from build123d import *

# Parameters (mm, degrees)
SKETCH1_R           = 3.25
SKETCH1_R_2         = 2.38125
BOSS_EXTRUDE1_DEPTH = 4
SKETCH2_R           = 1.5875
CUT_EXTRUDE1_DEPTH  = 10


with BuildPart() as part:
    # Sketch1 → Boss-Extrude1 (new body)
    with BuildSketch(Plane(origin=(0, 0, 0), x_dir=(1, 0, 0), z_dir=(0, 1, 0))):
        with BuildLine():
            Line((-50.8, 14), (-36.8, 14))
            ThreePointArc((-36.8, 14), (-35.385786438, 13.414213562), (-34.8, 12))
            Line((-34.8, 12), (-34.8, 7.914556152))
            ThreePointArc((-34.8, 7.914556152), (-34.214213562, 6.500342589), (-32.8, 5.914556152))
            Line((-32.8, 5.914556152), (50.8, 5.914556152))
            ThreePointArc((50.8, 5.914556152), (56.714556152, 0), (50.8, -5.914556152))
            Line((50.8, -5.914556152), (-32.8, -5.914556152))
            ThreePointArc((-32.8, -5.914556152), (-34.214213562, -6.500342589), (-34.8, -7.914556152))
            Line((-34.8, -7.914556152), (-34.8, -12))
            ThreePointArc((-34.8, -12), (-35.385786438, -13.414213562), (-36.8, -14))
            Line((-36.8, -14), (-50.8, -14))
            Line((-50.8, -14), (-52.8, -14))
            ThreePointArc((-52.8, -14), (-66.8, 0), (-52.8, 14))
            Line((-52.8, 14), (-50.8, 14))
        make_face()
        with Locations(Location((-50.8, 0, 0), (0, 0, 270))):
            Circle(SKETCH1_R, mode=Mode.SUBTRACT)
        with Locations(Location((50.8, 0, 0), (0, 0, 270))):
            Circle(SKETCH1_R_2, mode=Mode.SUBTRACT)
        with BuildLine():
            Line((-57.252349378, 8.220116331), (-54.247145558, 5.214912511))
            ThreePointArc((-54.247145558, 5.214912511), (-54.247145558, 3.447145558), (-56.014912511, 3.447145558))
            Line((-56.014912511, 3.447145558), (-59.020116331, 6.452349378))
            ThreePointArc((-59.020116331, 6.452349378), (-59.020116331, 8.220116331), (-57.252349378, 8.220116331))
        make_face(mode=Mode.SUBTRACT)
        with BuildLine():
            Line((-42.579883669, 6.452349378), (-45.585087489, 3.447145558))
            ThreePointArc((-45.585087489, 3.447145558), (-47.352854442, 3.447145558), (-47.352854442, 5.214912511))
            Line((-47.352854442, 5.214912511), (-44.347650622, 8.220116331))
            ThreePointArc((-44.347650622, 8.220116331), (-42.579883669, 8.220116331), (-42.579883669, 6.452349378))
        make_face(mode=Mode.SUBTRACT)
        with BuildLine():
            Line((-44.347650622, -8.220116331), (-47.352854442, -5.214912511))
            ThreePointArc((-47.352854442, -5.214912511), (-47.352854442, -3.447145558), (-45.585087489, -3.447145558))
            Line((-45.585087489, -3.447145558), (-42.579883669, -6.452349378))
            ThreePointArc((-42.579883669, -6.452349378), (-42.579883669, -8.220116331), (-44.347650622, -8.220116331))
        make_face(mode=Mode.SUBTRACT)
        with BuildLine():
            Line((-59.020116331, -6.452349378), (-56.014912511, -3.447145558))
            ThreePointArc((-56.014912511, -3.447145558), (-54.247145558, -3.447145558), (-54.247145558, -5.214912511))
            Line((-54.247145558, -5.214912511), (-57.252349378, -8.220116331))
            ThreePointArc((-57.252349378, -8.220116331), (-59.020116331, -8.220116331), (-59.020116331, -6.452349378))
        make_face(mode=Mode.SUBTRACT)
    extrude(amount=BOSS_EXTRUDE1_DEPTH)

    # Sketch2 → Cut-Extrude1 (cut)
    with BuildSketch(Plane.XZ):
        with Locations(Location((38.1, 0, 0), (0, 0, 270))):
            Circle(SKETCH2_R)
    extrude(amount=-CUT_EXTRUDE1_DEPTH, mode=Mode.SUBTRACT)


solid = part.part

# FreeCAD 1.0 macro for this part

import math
import FreeCAD as App
import Part
import Sketcher

V = App.Vector

doc = App.newDocument("Part")
body = doc.addObject("PartDesign::Body", "Body")

sketch1 = body.newObject("Sketcher::SketchObject", "Sketch")
sketch1.AttachmentSupport = (doc.getObject("XZ_Plane"), [""])
sketch1.MapMode = "FlatFace"
sketch1.addGeometry([
    Part.ArcOfCircle(Part.Circle(V(-36.8, -12, 0), V(0, 0, 1), 2), math.radians(-90), math.radians(0)),
    Part.LineSegment(V(-36.8, -14, 0), V(-52.8, -14, 0)),
    Part.ArcOfCircle(Part.Circle(V(-52.8, 0, 0), V(0, 0, 1), 14), math.radians(90), math.radians(270)),
    Part.LineSegment(V(-52.8, 14, 0), V(-36.8, 14, 0)),
    Part.ArcOfCircle(Part.Circle(V(-36.8, 12, 0), V(0, 0, 1), 2), math.radians(0), math.radians(90)),
    Part.LineSegment(V(-34.8, 12, 0), V(-34.8, 7.914556, 0)),
    Part.ArcOfCircle(Part.Circle(V(-32.8, 7.914556, 0), V(0, 0, 1), 2), math.radians(180), math.radians(270)),
    Part.LineSegment(V(-32.8, 5.914556, 0), V(50.8, 5.914556, 0)),
    Part.ArcOfCircle(Part.Circle(V(50.8, 0, 0), V(0, 0, 1), 5.914556), math.radians(-90), math.radians(90)),
    Part.LineSegment(V(50.8, -5.914556, 0), V(-32.8, -5.914556, 0)),
    Part.ArcOfCircle(Part.Circle(V(-32.8, -7.914556, 0), V(0, 0, 1), 2), math.radians(90), math.radians(180)),
    Part.LineSegment(V(-34.8, -7.914556, 0), V(-34.8, -12, 0)),
    Part.LineSegment(V(-44.347651, 8.220116, 0), V(-47.352854, 5.214913, 0)),
    Part.ArcOfCircle(Part.Circle(V(-46.468971, 4.331029, 0), V(0, 0, 1), 1.25), math.radians(135), math.radians(315)),
    Part.LineSegment(V(-45.585087, 3.447146, 0), V(-42.579884, 6.452349, 0)),
    Part.ArcOfCircle(Part.Circle(V(-43.463767, 7.336233, 0), V(0, 0, 1), 1.25), math.radians(-45), math.radians(135)),
    Part.LineSegment(V(-59.020116, 6.452349, 0), V(-56.014913, 3.447146, 0)),
    Part.ArcOfCircle(Part.Circle(V(-55.131029, 4.331029, 0), V(0, 0, 1), 1.25), math.radians(-135), math.radians(45)),
    Part.LineSegment(V(-54.247146, 5.214913, 0), V(-57.252349, 8.220116, 0)),
    Part.ArcOfCircle(Part.Circle(V(-58.136233, 7.336233, 0), V(0, 0, 1), 1.25), math.radians(45), math.radians(225)),
    Part.Circle(V(50.8, 0, 0), V(0, 0, 1), 2.38125),
    Part.Circle(V(-50.8, 0, 0), V(0, 0, 1), 3.25),
    Part.LineSegment(V(-42.579884, -6.452349, 0), V(-45.585087, -3.447146, 0)),
    Part.ArcOfCircle(Part.Circle(V(-46.468971, -4.331029, 0), V(0, 0, 1), 1.25), math.radians(45), math.radians(225)),
    Part.LineSegment(V(-47.352854, -5.214913, 0), V(-44.347651, -8.220116, 0)),
    Part.ArcOfCircle(Part.Circle(V(-43.463767, -7.336233, 0), V(0, 0, 1), 1.25), math.radians(-135), math.radians(45)),
    Part.LineSegment(V(-57.252349, -8.220116, 0), V(-54.247146, -5.214913, 0)),
    Part.ArcOfCircle(Part.Circle(V(-55.131029, -4.331029, 0), V(0, 0, 1), 1.25), math.radians(-45), math.radians(135)),
    Part.LineSegment(V(-56.014913, -3.447146, 0), V(-59.020116, -6.452349, 0)),
    Part.ArcOfCircle(Part.Circle(V(-58.136233, -7.336233, 0), V(0, 0, 1), 1.25), math.radians(135), math.radians(315)),
], False)
sketch1.addConstraint([
    Sketcher.Constraint("Tangent", 0, 1, 1, 1),
    Sketcher.Constraint("Tangent", 1, 2, 2, 2),
    Sketcher.Constraint("Tangent", 2, 1, 3, 1),
    Sketcher.Constraint("Tangent", 3, 2, 4, 2),
    Sketcher.Constraint("Tangent", 4, 1, 5, 1),
    Sketcher.Constraint("Tangent", 5, 2, 6, 1),
    Sketcher.Constraint("Tangent", 6, 2, 7, 1),
    Sketcher.Constraint("Tangent", 7, 2, 8, 2),
    Sketcher.Constraint("Tangent", 8, 1, 9, 1),
    Sketcher.Constraint("Tangent", 9, 2, 10, 1),
    Sketcher.Constraint("Tangent", 10, 2, 11, 1),
    Sketcher.Constraint("Tangent", 11, 2, 0, 2),
    Sketcher.Constraint("Tangent", 12, 2, 13, 1),
    Sketcher.Constraint("Tangent", 13, 2, 14, 1),
    Sketcher.Constraint("Tangent", 14, 2, 15, 1),
    Sketcher.Constraint("Tangent", 15, 2, 12, 1),
    Sketcher.Constraint("Tangent", 16, 2, 17, 1),
    Sketcher.Constraint("Tangent", 17, 2, 18, 1),
    Sketcher.Constraint("Tangent", 18, 2, 19, 1),
    Sketcher.Constraint("Tangent", 19, 2, 16, 1),
    Sketcher.Constraint("Tangent", 22, 2, 23, 1),
    Sketcher.Constraint("Tangent", 23, 2, 24, 1),
    Sketcher.Constraint("Tangent", 24, 2, 25, 1),
    Sketcher.Constraint("Tangent", 25, 2, 22, 1),
    Sketcher.Constraint("Tangent", 26, 2, 27, 1),
    Sketcher.Constraint("Tangent", 27, 2, 28, 1),
    Sketcher.Constraint("Tangent", 28, 2, 29, 1),
    Sketcher.Constraint("Tangent", 29, 2, 26, 1),
    Sketcher.Constraint("Horizontal", 1),
    Sketcher.Constraint("Horizontal", 3),
    Sketcher.Constraint("Vertical", 5),
    Sketcher.Constraint("Horizontal", 7),
    Sketcher.Constraint("Horizontal", 9),
    Sketcher.Constraint("Vertical", 11),
    Sketcher.Constraint("Coincident", 20, 3, 8, 3),
    Sketcher.Constraint("Equal", 0, 4),
    Sketcher.Constraint("Equal", 4, 6),
    Sketcher.Constraint("Equal", 6, 10),
    Sketcher.Constraint("Equal", 13, 15),
    Sketcher.Constraint("Equal", 15, 17),
    Sketcher.Constraint("Equal", 17, 19),
    Sketcher.Constraint("Equal", 19, 23),
    Sketcher.Constraint("Equal", 23, 25),
    Sketcher.Constraint("Equal", 25, 27),
    Sketcher.Constraint("Equal", 27, 29),
    Sketcher.Constraint("Symmetric", 8, 3, 21, 3, -1, 1),
    Sketcher.Constraint("Symmetric", 0, 3, 4, 3, -1),
    Sketcher.Constraint("Symmetric", 13, 3, 23, 3, -1),
    Sketcher.Constraint("Symmetric", 15, 3, 25, 3, -1),
    Sketcher.Constraint("Symmetric", 17, 3, 27, 3, -1),
    Sketcher.Constraint("Symmetric", 19, 3, 29, 3, -1),
    Sketcher.Constraint("PointOnObject", 8, 3, -1),
    Sketcher.Constraint("Perpendicular", 14, 16),
    Sketcher.Constraint("Parallel", 18, 22),
    Sketcher.Constraint("Horizontal", 13, 3, 17, 3),
    Sketcher.Constraint("Horizontal", 15, 3, 19, 3),
    Sketcher.Constraint("Radius", 0, 2.0),
    Sketcher.Constraint("Radius", 2, 14.0),
    Sketcher.Constraint("Diameter", 21, 6.5),
    Sketcher.Constraint("DistanceX", 1, 2, 1, 1, 16.0),
    Sketcher.Constraint("Radius", 13, 1.25),
    Sketcher.Constraint("DistanceX", 7, 1, 7, 2, 83.6),
    Sketcher.Constraint("DistanceX", 2, 3, 21, 3, 2.0),
    Sketcher.Constraint("Diameter", 20, 4.7625),
    Sketcher.Constraint("Distance", 12, 4.25),
    Sketcher.Constraint("Radius", 8, 5.914556),
    Sketcher.Constraint("DistanceX", 13, 3, -1, 1, 46.468971),
    Sketcher.Constraint("DistanceY", -1, 1, 13, 3, 4.331029),
    Sketcher.Constraint("DistanceX", 17, 3, -1, 1, 55.131029),
])
pad1 = body.newObject("PartDesign::Pad", "Pad")
pad1.Profile = sketch1
pad1.Length = 4
pad1.Reversed = True

sketch2 = body.newObject("Sketcher::SketchObject", "Sketch001")
sketch2.AttachmentSupport = (doc.getObject("XZ_Plane"), [""])
sketch2.MapMode = "FlatFace"
sketch2.addGeometry(Part.Circle(V(38.1, 0, 0), V(0, 0, 1), 1.5875), False)
sketch2.addConstraint([
    Sketcher.Constraint("PointOnObject", 0, 3, -1),
    Sketcher.Constraint("Diameter", 0, 3.175),
    Sketcher.Constraint("DistanceX", -1, 1, 0, 3, 38.1),
])
pocket1 = body.newObject("PartDesign::Pocket", "Pocket")
pocket1.Profile = sketch2
pocket1.Length = 10

doc.recompute()
